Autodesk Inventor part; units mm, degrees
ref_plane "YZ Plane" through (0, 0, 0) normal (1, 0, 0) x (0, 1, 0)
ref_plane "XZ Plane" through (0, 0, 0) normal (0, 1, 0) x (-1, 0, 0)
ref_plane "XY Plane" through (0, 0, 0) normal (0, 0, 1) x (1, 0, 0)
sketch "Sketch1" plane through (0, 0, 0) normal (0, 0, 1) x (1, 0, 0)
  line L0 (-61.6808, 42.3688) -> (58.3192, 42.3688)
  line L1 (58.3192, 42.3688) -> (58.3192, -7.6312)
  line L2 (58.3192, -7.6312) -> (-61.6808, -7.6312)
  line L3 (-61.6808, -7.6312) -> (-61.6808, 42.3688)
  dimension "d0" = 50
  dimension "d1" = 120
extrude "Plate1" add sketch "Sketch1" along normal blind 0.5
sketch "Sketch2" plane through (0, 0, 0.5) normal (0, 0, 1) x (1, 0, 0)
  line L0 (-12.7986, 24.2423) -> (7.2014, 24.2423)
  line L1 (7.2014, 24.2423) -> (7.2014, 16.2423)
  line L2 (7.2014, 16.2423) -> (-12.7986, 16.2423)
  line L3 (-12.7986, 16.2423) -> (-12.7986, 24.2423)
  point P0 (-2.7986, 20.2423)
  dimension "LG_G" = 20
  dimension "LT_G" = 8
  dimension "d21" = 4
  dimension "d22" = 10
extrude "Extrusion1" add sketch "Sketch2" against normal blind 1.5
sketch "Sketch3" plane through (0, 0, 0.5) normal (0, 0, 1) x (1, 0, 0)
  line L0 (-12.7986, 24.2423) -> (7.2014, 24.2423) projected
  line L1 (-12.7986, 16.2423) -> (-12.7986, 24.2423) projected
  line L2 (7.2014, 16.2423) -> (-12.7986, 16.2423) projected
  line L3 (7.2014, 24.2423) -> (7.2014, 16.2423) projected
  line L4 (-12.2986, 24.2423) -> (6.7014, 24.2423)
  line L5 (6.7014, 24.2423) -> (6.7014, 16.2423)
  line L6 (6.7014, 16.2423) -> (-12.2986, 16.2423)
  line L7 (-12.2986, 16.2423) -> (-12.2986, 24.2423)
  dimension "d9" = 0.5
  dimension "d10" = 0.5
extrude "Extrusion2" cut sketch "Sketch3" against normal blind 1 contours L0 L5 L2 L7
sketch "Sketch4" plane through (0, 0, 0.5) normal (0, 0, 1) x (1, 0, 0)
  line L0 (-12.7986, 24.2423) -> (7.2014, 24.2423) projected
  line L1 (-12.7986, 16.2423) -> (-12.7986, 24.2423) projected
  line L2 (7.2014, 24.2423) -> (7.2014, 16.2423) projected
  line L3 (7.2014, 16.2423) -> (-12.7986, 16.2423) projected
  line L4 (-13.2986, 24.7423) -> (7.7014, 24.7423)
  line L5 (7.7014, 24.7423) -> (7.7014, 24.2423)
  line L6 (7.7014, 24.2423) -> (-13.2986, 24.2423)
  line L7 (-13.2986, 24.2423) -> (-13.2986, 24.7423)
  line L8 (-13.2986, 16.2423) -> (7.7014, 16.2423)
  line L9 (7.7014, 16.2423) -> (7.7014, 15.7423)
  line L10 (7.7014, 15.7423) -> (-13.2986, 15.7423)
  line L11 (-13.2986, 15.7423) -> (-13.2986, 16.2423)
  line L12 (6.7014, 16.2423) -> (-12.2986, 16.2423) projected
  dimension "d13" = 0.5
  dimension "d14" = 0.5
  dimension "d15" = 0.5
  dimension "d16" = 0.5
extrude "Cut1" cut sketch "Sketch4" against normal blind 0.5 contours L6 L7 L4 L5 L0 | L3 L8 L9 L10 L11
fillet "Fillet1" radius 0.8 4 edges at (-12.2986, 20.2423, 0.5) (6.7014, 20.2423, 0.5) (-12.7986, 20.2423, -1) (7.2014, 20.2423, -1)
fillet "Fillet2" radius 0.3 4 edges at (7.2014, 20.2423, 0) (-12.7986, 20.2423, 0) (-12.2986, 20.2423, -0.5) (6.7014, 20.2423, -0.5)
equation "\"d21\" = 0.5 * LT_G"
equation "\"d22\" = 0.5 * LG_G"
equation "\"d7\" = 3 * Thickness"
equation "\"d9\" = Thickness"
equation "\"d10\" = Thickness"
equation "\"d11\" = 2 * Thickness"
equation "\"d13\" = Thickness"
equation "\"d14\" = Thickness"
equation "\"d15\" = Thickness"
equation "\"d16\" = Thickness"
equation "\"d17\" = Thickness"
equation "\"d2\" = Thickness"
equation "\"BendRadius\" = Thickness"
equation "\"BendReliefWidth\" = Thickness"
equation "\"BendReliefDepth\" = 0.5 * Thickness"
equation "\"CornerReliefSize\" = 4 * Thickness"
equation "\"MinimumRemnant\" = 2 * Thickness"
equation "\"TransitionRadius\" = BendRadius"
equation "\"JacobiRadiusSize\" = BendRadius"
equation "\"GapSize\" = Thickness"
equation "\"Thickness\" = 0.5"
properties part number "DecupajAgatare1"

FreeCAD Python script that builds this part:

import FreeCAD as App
import Part
import Sketcher
from FreeCAD import Vector


def edges_at(feature, points):
    """Names of the edges that pass closest to the given points."""
    edges = feature.Shape.Edges
    near = lambda p: min(range(len(edges)), key=lambda i: edges[i].distToShape(Part.Vertex(*p))[0])
    return sorted({f"Edge{near(p) + 1}" for p in points})


def add_polygon(sketch, points):
    """Adds a closed chain of lines whose ends are joined by coincident constraints."""
    first, n = sketch.GeometryCount, len(points)
    for a, b in zip(points, points[1:] + points[:1]):
        sketch.addGeometry(Part.LineSegment(App.Vector(*a, 0), App.Vector(*b, 0)), False)
    for i in range(n):
        sketch.addConstraint(Sketcher.Constraint("Coincident", first + i, 2, first + (i + 1) % n, 1))

doc = App.newDocument("Part")
body = doc.addObject("PartDesign::Body", "Body")

# Sketch on XY plane
sketch1 = body.newObject("Sketcher::SketchObject", "Sketch")
sketch1.AttachmentSupport = (doc.getObject("XY_Plane"), [""])
sketch1.MapMode = "FlatFace"
add_polygon(sketch1, [(58, 42), (-62, 42), (-62, -8), (58, -8)])  # lines 0-3
sketch1.addConstraint([
    Sketcher.Constraint("Horizontal", 0),
    Sketcher.Constraint("Vertical", 1),
    Sketcher.Constraint("Horizontal", 2),
    Sketcher.Constraint("Vertical", 3),
    Sketcher.Constraint("DistanceX", 0, 2, 0, 1, 120.0),
    Sketcher.Constraint("DistanceY", 1, 2, 1, 1, 50.0),
    Sketcher.Constraint("DistanceX", 0, 2, -1, 1, 61.6808),
    Sketcher.Constraint("DistanceY", -1, 1, 0, 2, 42.3688),
])
pad1 = body.newObject("PartDesign::Pad", "Pad")
pad1.Profile = sketch1
pad1.Length = 0.5

# Sketch on XY plane
sketch2 = body.newObject("Sketcher::SketchObject", "Sketch001")
sketch2.AttachmentSupport = (doc.getObject("XY_Plane"), [""])
sketch2.MapMode = "FlatFace"
sketch2.AttachmentOffset = App.Placement(Vector(0, 0, 0.5), App.Rotation())
add_polygon(sketch2, [(7, 24), (-13, 24), (-13, 16), (7, 16)])  # lines 0-3
sketch2.addConstraint([
    Sketcher.Constraint("Horizontal", 0),
    Sketcher.Constraint("Vertical", 1),
    Sketcher.Constraint("Horizontal", 2),
    Sketcher.Constraint("Vertical", 3),
    Sketcher.Constraint("DistanceX", 0, 2, 0, 1, 20.0),
    Sketcher.Constraint("DistanceY", 1, 2, 1, 1, 8.0),
    Sketcher.Constraint("DistanceX", 0, 2, -1, 1, 12.7986),
    Sketcher.Constraint("DistanceY", -1, 1, 0, 2, 24.2423),
])
pad2 = body.newObject("PartDesign::Pad", "Pad001")
pad2.Profile = sketch2
pad2.Length = 1.5
pad2.Reversed = True

# Sketch on XY plane
sketch3 = body.newObject("Sketcher::SketchObject", "Sketch002")
sketch3.AttachmentSupport = (doc.getObject("XY_Plane"), [""])
sketch3.MapMode = "FlatFace"
sketch3.AttachmentOffset = App.Placement(Vector(0, 0, 0.5), App.Rotation())
add_polygon(sketch3, [(7, 24), (-12, 24), (-12, 16), (7, 16)])  # lines 0-3
sketch3.addConstraint([
    Sketcher.Constraint("Horizontal", 0),
    Sketcher.Constraint("Vertical", 1),
    Sketcher.Constraint("Horizontal", 2),
    Sketcher.Constraint("Vertical", 3),
    Sketcher.Constraint("DistanceX", 0, 2, 0, 1, 19.0),
    Sketcher.Constraint("DistanceY", 1, 2, 1, 1, 8.0),
    Sketcher.Constraint("DistanceX", 0, 2, -1, 1, 12.2986),
    Sketcher.Constraint("DistanceY", -1, 1, 0, 2, 24.2423),
])
pocket1 = body.newObject("PartDesign::Pocket", "Pocket")
pocket1.Profile = sketch3
pocket1.Length = 1

# Sketch on XY plane
sketch4 = body.newObject("Sketcher::SketchObject", "Sketch003")
sketch4.AttachmentSupport = (doc.getObject("XY_Plane"), [""])
sketch4.MapMode = "FlatFace"
sketch4.AttachmentOffset = App.Placement(Vector(0, 0, 0.5), App.Rotation())
add_polygon(sketch4, [(-13.3, 24.2), (7.7, 24.2), (7.7, 24.7), (-13.3, 24.7)])  # lines 0-3
add_polygon(sketch4, [(7.7, 16.2), (-13.3, 16.2), (-13.3, 15.7), (7.7, 15.7)])  # lines 4-7
sketch4.addConstraint([
    Sketcher.Constraint("Horizontal", 0),
    Sketcher.Constraint("Vertical", 1),
    Sketcher.Constraint("Horizontal", 2),
    Sketcher.Constraint("Vertical", 3),
    Sketcher.Constraint("Horizontal", 4),
    Sketcher.Constraint("Vertical", 5),
    Sketcher.Constraint("Horizontal", 6),
    Sketcher.Constraint("Vertical", 7),
    Sketcher.Constraint("Vertical", 3, 2, 4, 2),
    Sketcher.Constraint("Vertical", 1, 2, 6, 2),
    Sketcher.Constraint("Equal", 3, 5),
    Sketcher.Constraint("DistanceY", 1, 1, 1, 2, 0.5),
    Sketcher.Constraint("DistanceX", 0, 1, 0, 2, 21.0),
    Sketcher.Constraint("DistanceY", 4, 2, 3, 2, 8.0),
    Sketcher.Constraint("DistanceX", -1, 1, 0, 2, 7.7014),
    Sketcher.Constraint("DistanceY", -1, 1, 0, 2, 24.2423),
])
pocket2 = body.newObject("PartDesign::Pocket", "Pocket001")
pocket2.Profile = sketch4
pocket2.Length = 0.5
doc.recompute()

fillet = body.newObject("PartDesign::Fillet", "Fillet")
fillet.Base = (pocket2, edges_at(pocket2, [
    (-12.299, 20.242, 0.5),
    (6.701, 20.242, 0.5),
    (-12.799, 20.242, -1),
    (7.201, 20.242, -1),
]))
fillet.Radius = 0.8
doc.recompute()

fillet2 = body.newObject("PartDesign::Fillet", "Fillet001")
fillet2.Base = (fillet, edges_at(fillet, [
    (7.201, 20.242, 0),
    (-12.799, 20.242, 0),
    (-12.299, 20.242, -0.5),
    (6.701, 20.242, -0.5),
]))
fillet2.Radius = 0.3

doc.recompute()
